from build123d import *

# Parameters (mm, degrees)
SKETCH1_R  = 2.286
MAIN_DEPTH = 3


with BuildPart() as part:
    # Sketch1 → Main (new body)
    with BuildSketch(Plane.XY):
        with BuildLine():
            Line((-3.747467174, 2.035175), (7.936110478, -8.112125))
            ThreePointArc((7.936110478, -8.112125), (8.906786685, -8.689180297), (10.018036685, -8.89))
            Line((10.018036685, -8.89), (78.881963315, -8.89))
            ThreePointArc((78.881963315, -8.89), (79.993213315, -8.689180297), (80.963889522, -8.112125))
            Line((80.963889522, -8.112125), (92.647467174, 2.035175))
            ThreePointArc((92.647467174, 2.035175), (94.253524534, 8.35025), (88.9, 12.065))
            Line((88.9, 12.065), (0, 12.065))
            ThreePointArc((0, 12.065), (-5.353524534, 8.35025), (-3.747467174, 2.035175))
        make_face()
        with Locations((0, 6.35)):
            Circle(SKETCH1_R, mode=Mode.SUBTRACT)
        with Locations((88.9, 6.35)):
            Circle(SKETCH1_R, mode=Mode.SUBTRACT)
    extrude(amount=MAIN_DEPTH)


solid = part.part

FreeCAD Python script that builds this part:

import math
import FreeCAD as App
import Part
import Sketcher

V = App.Vector
Q = App.Units.Quantity

doc = App.newDocument("Part")
body = doc.addObject("PartDesign::Body", "Body")

sketch1 = body.newObject("Sketcher::SketchObject", "Sketch")
sketch1.AttachmentSupport = (doc.getObject("XY_Plane"), [""])
sketch1.MapMode = "FlatFace"
sketch1.addGeometry([
    Part.LineSegment(V(-3.747467, 2.035175, 0), V(7.93611, -8.112125, 0)),
    Part.ArcOfCircle(Part.Circle(V(10.018037, -5.715, 0), V(0, 0, 1), 3.175), math.radians(-130.97463), math.radians(-90)),
    Part.LineSegment(V(10.018037, -8.89, 0), V(78.881963, -8.89, 0)),
    Part.ArcOfCircle(Part.Circle(V(78.881963, -5.715, 0), V(0, 0, 1), 3.175), math.radians(-90), math.radians(-49.02537)),
    Part.LineSegment(V(80.96389, -8.112125, 0), V(92.647467, 2.035175, 0)),
    Part.ArcOfCircle(Part.Circle(V(88.9, 6.35, 0), V(0, 0, 1), 5.715), math.radians(-49.02537), math.radians(90)),
    Part.LineSegment(V(88.9, 12.065, 0), V(0, 12.065, 0)),
    Part.ArcOfCircle(Part.Circle(V(0, 6.35, 0), V(0, 0, 1), 5.715), math.radians(90), math.radians(229.02537)),
    Part.Circle(V(0, 6.35, 0), V(0, 0, 1), 2.286),
    Part.Circle(V(88.9, 6.35, 0), V(0, 0, 1), 2.286),
], False)
sketch1.addConstraint([
    Sketcher.Constraint("Tangent", 0, 2, 1, 1),
    Sketcher.Constraint("Tangent", 1, 2, 2, 1),
    Sketcher.Constraint("Tangent", 2, 2, 3, 1),
    Sketcher.Constraint("Tangent", 3, 2, 4, 1),
    Sketcher.Constraint("Tangent", 4, 2, 5, 1),
    Sketcher.Constraint("Tangent", 5, 2, 6, 1),
    Sketcher.Constraint("Tangent", 6, 2, 7, 1),
    Sketcher.Constraint("Tangent", 7, 2, 0, 1),
    Sketcher.Constraint("Horizontal", 2),
    Sketcher.Constraint("Horizontal", 6),
    Sketcher.Constraint("Coincident", 8, 3, 7, 3),
    Sketcher.Constraint("Coincident", 9, 3, 5, 3),
    Sketcher.Constraint("Equal", 1, 3),
    Sketcher.Constraint("Equal", 5, 7),
    Sketcher.Constraint("Equal", 8, 9),
    Sketcher.Constraint("PointOnObject", 7, 3, -2),
    Sketcher.Constraint("Horizontal", 0, 2, 3, 2),
    Sketcher.Constraint("Diameter", 8, Q("0.18 in")),
    Sketcher.Constraint("DistanceX", 6, 2, 6, 1, Q("3.5 in")),
    Sketcher.Constraint("Radius", 1, Q("0.125 in")),
    Sketcher.Constraint("Radius", 5, Q("0.225 in")),
    Sketcher.Constraint("DistanceY", 1, 2, 7, 3, Q("0.6 in")),
    Sketcher.Constraint("DistanceY", -1, 1, 5, 3, Q("0.25 in")),
    Sketcher.Constraint("DistanceY", 3, 2, 4, 2, Q("0.3995 in")),
])
pad1 = body.newObject("PartDesign::Pad", "Pad")
pad1.Profile = sketch1
pad1.Length = 3

doc.recompute()
